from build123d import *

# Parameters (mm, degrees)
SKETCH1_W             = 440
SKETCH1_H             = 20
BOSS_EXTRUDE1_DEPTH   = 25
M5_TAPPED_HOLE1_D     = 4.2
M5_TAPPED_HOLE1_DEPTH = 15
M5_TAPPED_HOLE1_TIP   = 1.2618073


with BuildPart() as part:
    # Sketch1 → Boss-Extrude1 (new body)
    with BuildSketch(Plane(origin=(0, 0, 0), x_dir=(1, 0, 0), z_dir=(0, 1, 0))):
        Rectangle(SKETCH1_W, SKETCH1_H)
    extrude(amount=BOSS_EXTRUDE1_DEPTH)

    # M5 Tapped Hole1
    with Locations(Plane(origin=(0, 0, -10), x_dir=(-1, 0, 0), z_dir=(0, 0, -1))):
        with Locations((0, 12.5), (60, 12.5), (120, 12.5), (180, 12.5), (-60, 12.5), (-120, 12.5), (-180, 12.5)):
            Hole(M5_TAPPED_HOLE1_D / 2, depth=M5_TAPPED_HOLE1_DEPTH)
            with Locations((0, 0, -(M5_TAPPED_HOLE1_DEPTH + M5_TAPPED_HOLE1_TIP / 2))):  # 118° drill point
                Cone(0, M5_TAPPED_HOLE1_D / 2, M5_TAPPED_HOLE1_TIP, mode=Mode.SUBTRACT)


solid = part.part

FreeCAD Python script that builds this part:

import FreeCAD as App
import Part
import Sketcher
from FreeCAD import Vector


def add_polygon(sketch, points):
    """Adds a closed chain of lines whose ends are joined by coincident constraints."""
    first, n = sketch.GeometryCount, len(points)
    for a, b in zip(points, points[1:] + points[:1]):
        sketch.addGeometry(Part.LineSegment(App.Vector(*a, 0), App.Vector(*b, 0)), False)
    for i in range(n):
        sketch.addConstraint(Sketcher.Constraint("Coincident", first + i, 2, first + (i + 1) % n, 1))

doc = App.newDocument("Part")
body = doc.addObject("PartDesign::Body", "Body")

sketch1 = body.newObject("Sketcher::SketchObject", "Sketch")
sketch1.AttachmentSupport = (doc.getObject("XZ_Plane"), [""])
sketch1.MapMode = "FlatFace"
add_polygon(sketch1, [(-220, -10), (-220, 10), (220, 10), (220, -10)])
sketch1.addConstraint([
    Sketcher.Constraint("Vertical", 0),
    Sketcher.Constraint("Horizontal", 1),
    Sketcher.Constraint("Vertical", 2),
    Sketcher.Constraint("Horizontal", 3),
    Sketcher.Constraint("Symmetric", 0, 2, 2, 2, -1, 1),
    Sketcher.Constraint("DistanceX", 1, 1, 1, 2, 440.0),
    Sketcher.Constraint("DistanceY", 0, 1, 0, 2, 20.0),
])
pad1 = body.newObject("PartDesign::Pad", "Pad")
pad1.Profile = sketch1
pad1.Length = 25
pad1.Reversed = True

sketch2 = body.newObject("Sketcher::SketchObject", "Sketch001")
sketch2.AttachmentSupport = (doc.getObject("XY_Plane"), [""])
sketch2.MapMode = "FlatFace"
sketch2.AttachmentOffset = App.Placement(Vector(0, 0, -10), App.Rotation())
sketch2.addGeometry([
    Part.Circle(Vector(0, 12.5, 0), Vector(0, 0, 1), 2.1),
    Part.Circle(Vector(-60, 12.5, 0), Vector(0, 0, 1), 2.1),
    Part.Circle(Vector(-120, 12.5, 0), Vector(0, 0, 1), 2.1),
    Part.Circle(Vector(-180, 12.5, 0), Vector(0, 0, 1), 2.1),
    Part.Circle(Vector(60, 12.5, 0), Vector(0, 0, 1), 2.1),
    Part.Circle(Vector(120, 12.5, 0), Vector(0, 0, 1), 2.1),
    Part.Circle(Vector(180, 12.5, 0), Vector(0, 0, 1), 2.1),
], False)
sketch2.addConstraint([
    Sketcher.Constraint("Equal", 0, 1),
    Sketcher.Constraint("Equal", 1, 2),
    Sketcher.Constraint("Equal", 2, 3),
    Sketcher.Constraint("Equal", 3, 4),
    Sketcher.Constraint("Equal", 4, 5),
    Sketcher.Constraint("Equal", 5, 6),
    Sketcher.Constraint("Symmetric", 1, 3, 4, 3, -2),
    Sketcher.Constraint("Symmetric", 2, 3, 5, 3, -2),
    Sketcher.Constraint("Symmetric", 3, 3, 6, 3, -2),
    Sketcher.Constraint("PointOnObject", 0, 3, -2),
    Sketcher.Constraint("Horizontal", 0, 3, 1, 3),
    Sketcher.Constraint("Horizontal", 1, 3, 2, 3),
    Sketcher.Constraint("Horizontal", 2, 3, 3, 3),
    Sketcher.Constraint("Diameter", 0, 4.2),
    Sketcher.Constraint("DistanceX", 1, 3, -1, 1, 60.0),
    Sketcher.Constraint("DistanceX", 2, 3, -1, 1, 120.0),
    Sketcher.Constraint("DistanceX", 3, 3, -1, 1, 180.0),
    Sketcher.Constraint("DistanceY", -1, 1, 0, 3, 12.5),
])
doc.recompute()
hole = body.newObject("PartDesign::Hole", "Hole")
hole.Profile = sketch2
hole.ThreadType = "None"
hole.Diameter = 4.2
hole.DepthType = "Dimension"
hole.Depth = 15
hole.DrillPoint = "Angled"
hole.DrillPointAngle = 118
hole.Reversed = True

doc.recompute()
